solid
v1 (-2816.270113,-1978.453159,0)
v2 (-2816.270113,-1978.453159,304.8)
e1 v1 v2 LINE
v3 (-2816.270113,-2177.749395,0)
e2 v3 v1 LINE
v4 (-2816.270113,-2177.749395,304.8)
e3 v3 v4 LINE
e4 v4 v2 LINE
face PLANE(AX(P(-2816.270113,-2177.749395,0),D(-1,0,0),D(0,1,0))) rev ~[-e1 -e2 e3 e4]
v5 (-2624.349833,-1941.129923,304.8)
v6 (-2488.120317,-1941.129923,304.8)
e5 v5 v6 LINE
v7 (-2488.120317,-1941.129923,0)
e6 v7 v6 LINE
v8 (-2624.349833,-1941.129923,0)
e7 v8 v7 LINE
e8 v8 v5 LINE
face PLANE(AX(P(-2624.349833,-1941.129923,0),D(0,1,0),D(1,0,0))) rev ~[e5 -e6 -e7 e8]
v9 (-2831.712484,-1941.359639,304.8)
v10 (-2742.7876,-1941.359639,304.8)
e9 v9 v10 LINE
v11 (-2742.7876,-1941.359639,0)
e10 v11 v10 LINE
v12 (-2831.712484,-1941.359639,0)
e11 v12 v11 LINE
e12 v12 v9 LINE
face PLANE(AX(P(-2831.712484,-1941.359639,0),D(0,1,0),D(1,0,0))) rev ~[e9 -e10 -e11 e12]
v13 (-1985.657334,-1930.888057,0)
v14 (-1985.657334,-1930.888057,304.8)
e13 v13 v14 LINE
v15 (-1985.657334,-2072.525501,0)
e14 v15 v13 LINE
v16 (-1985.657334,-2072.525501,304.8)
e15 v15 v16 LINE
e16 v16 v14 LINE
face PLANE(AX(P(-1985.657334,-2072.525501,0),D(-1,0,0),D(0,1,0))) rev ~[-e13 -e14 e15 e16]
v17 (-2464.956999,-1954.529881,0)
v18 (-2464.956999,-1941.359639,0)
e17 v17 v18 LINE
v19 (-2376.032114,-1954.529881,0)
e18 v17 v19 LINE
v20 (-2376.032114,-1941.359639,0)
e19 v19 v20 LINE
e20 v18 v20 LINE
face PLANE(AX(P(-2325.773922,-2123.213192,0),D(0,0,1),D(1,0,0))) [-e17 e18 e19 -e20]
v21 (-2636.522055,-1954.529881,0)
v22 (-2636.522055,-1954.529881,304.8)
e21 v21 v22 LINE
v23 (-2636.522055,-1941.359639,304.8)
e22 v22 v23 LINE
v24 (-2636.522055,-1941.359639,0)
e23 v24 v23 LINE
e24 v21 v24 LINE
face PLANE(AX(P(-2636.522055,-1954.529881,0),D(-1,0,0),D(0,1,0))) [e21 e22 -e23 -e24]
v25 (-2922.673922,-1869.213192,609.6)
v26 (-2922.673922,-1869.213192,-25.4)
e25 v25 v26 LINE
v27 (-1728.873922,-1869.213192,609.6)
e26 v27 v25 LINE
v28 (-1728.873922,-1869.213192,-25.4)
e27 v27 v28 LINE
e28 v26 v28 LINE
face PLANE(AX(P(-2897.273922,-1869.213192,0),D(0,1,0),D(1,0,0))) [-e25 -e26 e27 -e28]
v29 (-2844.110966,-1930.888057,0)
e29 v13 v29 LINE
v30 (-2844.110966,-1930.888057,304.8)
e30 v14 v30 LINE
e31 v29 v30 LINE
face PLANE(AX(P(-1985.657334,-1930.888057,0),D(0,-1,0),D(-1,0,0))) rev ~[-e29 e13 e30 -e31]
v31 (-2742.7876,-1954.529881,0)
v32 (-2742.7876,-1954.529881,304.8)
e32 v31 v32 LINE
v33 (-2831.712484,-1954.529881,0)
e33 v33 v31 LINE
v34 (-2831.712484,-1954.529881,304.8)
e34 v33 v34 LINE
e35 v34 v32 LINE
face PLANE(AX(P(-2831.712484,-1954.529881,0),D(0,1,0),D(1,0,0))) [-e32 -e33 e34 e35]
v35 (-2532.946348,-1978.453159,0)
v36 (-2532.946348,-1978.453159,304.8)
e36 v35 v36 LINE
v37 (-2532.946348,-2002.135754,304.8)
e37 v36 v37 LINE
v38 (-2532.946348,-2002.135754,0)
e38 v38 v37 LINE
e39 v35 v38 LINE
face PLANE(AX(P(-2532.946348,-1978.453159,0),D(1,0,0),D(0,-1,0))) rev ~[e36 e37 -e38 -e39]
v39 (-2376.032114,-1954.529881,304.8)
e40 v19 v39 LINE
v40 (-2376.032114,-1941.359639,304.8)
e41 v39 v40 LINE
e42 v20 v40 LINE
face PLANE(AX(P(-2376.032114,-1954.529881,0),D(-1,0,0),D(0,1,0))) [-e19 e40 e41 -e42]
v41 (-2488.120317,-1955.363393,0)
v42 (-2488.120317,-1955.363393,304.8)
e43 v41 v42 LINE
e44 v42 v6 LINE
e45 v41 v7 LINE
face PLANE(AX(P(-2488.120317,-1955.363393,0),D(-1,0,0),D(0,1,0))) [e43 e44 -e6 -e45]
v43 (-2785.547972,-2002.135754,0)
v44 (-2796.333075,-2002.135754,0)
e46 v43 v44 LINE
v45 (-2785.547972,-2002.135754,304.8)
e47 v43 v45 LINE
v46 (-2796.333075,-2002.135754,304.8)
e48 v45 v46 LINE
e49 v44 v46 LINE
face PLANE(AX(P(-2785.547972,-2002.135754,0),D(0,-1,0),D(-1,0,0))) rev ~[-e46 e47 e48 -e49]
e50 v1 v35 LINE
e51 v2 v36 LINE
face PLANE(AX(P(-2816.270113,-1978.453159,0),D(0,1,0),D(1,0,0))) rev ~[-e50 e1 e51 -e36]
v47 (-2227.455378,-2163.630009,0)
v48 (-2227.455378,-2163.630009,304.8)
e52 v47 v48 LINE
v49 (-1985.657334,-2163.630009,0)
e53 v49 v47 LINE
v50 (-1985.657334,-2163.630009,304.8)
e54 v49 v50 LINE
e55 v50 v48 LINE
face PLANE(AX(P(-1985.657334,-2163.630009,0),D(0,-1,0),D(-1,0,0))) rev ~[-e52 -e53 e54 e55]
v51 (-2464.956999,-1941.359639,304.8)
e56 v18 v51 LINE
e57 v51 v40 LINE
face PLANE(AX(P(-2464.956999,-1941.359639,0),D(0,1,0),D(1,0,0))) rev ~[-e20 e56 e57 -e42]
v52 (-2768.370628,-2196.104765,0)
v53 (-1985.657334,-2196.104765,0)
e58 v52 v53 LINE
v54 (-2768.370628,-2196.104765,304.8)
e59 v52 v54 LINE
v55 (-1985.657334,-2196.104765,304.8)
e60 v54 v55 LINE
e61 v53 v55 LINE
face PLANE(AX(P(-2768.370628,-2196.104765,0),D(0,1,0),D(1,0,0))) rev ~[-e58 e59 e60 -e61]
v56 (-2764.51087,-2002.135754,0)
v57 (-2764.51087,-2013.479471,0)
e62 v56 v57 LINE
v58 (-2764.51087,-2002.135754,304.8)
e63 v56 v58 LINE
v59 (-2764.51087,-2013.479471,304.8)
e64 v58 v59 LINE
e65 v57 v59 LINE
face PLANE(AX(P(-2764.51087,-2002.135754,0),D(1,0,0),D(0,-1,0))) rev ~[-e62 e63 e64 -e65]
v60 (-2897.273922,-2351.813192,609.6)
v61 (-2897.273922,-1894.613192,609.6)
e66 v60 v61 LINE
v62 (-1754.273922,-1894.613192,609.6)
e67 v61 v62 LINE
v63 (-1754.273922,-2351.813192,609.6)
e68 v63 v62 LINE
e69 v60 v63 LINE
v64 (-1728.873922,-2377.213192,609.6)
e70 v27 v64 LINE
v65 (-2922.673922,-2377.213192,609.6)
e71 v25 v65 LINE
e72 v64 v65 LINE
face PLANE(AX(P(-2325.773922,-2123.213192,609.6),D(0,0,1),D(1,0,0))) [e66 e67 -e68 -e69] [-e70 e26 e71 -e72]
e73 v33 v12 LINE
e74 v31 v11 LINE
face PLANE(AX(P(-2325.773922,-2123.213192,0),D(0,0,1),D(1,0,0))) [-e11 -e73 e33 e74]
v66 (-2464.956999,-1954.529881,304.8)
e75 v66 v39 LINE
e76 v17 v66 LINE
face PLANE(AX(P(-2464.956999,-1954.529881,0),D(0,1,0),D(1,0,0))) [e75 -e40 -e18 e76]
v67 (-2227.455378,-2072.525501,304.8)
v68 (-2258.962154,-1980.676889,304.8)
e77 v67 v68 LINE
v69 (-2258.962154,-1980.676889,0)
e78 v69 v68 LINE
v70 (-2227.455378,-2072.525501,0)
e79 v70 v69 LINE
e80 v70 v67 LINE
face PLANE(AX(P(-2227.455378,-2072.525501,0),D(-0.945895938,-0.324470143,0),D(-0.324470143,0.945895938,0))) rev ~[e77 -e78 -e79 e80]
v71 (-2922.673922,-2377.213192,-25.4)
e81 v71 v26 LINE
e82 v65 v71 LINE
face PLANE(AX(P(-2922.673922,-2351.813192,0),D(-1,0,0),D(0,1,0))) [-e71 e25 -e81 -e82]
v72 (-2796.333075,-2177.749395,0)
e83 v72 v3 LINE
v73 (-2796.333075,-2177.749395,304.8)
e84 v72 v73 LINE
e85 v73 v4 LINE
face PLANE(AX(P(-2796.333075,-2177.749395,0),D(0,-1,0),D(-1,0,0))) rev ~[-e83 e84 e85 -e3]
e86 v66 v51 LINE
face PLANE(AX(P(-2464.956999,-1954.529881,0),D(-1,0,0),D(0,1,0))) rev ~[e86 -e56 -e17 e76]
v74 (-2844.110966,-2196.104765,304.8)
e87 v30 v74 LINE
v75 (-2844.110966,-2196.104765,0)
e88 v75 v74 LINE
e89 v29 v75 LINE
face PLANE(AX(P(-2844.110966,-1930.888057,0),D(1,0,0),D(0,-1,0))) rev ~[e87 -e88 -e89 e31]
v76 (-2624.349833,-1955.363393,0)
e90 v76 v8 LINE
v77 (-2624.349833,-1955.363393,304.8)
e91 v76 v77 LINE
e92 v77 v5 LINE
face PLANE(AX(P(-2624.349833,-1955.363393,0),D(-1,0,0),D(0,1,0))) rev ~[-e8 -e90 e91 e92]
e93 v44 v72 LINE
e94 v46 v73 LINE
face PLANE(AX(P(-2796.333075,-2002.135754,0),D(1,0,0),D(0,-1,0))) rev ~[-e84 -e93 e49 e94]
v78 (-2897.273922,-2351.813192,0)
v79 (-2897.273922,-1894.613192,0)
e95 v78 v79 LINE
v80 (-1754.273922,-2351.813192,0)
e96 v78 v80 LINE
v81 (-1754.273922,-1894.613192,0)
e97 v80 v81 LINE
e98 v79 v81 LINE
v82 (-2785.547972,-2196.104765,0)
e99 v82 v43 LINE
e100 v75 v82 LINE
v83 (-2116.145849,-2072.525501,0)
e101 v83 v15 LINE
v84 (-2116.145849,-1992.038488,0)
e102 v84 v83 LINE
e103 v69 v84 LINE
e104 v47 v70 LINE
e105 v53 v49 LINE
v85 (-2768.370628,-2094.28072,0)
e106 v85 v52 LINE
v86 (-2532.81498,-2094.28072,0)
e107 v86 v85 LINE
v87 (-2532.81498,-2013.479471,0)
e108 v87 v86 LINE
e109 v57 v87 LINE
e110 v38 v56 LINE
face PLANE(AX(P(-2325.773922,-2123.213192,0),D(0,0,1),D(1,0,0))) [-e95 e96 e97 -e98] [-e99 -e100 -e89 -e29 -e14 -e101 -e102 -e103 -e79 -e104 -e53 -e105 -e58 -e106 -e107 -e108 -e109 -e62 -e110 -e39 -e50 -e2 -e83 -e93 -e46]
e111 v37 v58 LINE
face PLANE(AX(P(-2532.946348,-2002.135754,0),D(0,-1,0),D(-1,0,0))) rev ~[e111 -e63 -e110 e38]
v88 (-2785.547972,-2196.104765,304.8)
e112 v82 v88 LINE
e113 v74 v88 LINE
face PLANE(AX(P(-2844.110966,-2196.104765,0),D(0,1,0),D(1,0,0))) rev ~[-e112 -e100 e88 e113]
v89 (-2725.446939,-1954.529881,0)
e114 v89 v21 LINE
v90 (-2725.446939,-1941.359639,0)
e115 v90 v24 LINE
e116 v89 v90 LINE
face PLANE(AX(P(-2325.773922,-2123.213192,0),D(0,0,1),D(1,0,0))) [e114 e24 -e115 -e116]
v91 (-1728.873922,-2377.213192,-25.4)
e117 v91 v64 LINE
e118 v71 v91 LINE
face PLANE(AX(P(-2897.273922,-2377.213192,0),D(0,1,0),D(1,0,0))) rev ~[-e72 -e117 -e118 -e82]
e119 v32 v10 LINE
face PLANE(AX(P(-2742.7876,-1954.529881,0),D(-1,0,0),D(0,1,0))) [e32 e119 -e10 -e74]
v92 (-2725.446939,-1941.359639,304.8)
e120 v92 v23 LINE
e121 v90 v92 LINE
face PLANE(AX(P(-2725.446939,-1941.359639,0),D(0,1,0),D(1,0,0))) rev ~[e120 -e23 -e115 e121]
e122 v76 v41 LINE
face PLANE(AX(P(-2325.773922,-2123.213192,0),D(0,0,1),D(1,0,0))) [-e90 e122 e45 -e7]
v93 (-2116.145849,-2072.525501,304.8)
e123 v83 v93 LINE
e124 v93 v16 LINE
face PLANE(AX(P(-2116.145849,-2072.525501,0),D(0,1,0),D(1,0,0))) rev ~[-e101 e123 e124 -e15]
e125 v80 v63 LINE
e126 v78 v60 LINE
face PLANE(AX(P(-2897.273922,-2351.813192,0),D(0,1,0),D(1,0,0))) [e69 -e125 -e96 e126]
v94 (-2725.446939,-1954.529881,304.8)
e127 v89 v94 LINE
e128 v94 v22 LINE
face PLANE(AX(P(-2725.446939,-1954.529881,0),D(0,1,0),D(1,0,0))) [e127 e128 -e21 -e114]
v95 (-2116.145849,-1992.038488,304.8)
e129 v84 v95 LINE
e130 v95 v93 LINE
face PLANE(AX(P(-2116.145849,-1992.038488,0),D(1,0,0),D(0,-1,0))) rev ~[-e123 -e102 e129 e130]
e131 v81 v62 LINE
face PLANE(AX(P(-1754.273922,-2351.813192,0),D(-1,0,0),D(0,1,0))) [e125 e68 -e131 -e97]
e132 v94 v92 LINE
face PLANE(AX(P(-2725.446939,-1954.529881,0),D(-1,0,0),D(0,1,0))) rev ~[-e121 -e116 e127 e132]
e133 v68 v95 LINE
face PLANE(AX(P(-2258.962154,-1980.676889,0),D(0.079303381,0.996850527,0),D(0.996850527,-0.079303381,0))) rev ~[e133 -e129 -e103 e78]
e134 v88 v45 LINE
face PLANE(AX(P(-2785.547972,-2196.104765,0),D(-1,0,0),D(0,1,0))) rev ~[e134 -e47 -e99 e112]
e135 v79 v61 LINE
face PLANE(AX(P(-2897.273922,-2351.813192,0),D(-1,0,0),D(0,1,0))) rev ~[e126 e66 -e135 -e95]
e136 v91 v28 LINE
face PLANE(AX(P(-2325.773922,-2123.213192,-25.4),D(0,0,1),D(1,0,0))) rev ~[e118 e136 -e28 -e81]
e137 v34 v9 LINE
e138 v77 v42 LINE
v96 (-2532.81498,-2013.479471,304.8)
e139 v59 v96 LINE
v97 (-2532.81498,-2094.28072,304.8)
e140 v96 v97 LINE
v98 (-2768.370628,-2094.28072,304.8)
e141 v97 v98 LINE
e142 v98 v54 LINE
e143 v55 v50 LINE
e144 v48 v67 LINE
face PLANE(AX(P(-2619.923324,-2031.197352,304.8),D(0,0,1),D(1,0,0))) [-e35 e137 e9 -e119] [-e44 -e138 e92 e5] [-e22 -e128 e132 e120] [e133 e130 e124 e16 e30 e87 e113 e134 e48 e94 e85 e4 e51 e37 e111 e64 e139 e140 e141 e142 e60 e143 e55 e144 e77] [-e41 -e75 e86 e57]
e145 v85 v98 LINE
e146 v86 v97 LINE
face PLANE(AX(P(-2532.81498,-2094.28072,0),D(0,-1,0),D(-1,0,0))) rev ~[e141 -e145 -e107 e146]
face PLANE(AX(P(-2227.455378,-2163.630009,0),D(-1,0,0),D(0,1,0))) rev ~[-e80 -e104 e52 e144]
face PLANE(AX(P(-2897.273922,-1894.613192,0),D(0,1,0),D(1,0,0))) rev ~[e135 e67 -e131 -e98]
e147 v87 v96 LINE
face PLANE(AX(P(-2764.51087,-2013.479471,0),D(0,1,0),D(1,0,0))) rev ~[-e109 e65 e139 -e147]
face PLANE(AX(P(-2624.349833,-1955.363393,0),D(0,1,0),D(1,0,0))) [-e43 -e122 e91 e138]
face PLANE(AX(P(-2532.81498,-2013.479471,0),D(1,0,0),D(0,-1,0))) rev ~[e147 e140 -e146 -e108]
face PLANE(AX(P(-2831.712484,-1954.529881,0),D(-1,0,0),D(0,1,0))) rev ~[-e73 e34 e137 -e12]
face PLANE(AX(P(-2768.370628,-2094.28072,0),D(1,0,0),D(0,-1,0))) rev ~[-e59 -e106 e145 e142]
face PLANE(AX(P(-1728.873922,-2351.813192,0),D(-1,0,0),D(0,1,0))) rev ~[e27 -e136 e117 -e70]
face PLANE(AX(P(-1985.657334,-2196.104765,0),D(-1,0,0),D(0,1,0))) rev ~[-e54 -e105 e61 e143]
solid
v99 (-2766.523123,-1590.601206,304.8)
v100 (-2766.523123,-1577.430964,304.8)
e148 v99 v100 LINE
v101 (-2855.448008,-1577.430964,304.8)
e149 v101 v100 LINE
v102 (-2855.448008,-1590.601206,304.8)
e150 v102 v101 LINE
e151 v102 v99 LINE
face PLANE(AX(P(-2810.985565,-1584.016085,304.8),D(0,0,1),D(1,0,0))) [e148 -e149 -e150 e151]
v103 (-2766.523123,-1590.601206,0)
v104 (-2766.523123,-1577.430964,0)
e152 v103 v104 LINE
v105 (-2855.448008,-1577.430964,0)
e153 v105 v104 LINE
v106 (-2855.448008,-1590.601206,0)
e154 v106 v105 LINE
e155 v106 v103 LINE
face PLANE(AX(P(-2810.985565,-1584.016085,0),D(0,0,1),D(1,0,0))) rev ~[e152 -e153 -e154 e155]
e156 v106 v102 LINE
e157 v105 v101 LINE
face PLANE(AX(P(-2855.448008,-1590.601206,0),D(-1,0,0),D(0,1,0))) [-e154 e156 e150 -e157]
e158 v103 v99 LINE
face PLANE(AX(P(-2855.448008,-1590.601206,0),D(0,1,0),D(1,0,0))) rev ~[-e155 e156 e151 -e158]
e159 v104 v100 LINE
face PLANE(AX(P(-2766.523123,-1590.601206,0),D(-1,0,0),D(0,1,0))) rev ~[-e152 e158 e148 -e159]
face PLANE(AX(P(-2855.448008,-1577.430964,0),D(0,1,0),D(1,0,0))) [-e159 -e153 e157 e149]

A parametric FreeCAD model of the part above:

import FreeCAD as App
import Part
import Sketcher
Q = App.Units.Quantity


def faces_at(feature, points):
    """Names of the faces that lie closest to the given points."""
    faces = feature.Shape.Faces
    near = lambda p: min(range(len(faces)), key=lambda i: faces[i].distToShape(Part.Vertex(*p))[0])
    return sorted({f"Face{near(p) + 1}" for p in points})


def add_polygon(sketch, points):
    """Adds a closed chain of lines whose ends are joined by coincident constraints."""
    first, n = sketch.GeometryCount, len(points)
    for a, b in zip(points, points[1:] + points[:1]):
        sketch.addGeometry(Part.LineSegment(App.Vector(*a, 0), App.Vector(*b, 0)), False)
    for i in range(n):
        sketch.addConstraint(Sketcher.Constraint("Coincident", first + i, 2, first + (i + 1) % n, 1))

doc = App.newDocument("Part")
body = doc.addObject("PartDesign::Body", "Body")

# Sketch on XY plane
sketch1 = doc.addObject("Sketcher::SketchObject", "Sketch")
body.addObject(sketch1)
sketch1.AttachmentSupport = (doc.XY_Plane, [""])
sketch1.MapMode = "FlatFace"
add_polygon(sketch1, [(-2897, -1895), (-2897, -2352), (-1754, -2352), (-1754, -1895)])  # lines 0-3
sketch1.addConstraint([
    Sketcher.Constraint("Vertical", 0),
    Sketcher.Constraint("Horizontal", 1),
    Sketcher.Constraint("Vertical", 2),
    Sketcher.Constraint("Horizontal", 3),
    Sketcher.Constraint("DistanceX", 1, 1, 1, 2, Q("45 in")),
    Sketcher.Constraint("DistanceY", 0, 2, 0, 1, Q("18 in")),
    Sketcher.Constraint("DistanceX", 0, 2, -1, 1, 2897.273922),
    Sketcher.Constraint("DistanceY", 0, 2, -1, 1, 2351.813192),
])
pad1 = doc.addObject("PartDesign::Pad", "Pad")
body.addObject(pad1)
pad1.Profile = sketch1
pad1.Length = Q("24 in")
doc.recompute()

thickness = doc.addObject("PartDesign::Thickness", "Thickness")
body.addObject(thickness)
thickness.Base = (pad1, faces_at(pad1, [(-2325.774, -2123.213, 609.6)]))
thickness.Value = Q("1 in")
thickness.Reversed = False
thickness.Join = "Intersection"

# Sketch on XY plane
sketch2 = doc.addObject("Sketcher::SketchObject", "Sketch001")
body.addObject(sketch2)
sketch2.AttachmentSupport = (doc.XY_Plane, [""])
sketch2.MapMode = "FlatFace"
add_polygon(sketch2, [(-2844, -1931), (-2844, -2196), (-2786, -2196), (-2786, -2002), (-2796, -2002), (-2796, -2178), (-2816, -2178), (-2816, -1978), (-2533, -1978), (-2533, -2002), (-2765, -2002), (-2765, -2013), (-2533, -2013), (-2533, -2094), (-2768, -2094), (-2768, -2196), (-1986, -2196), (-1986, -2164), (-2227, -2164), (-2227, -2073), (-2259, -1981), (-2116, -1992), (-2116, -2073), (-1986, -2073), (-1986, -1931)])  # lines 0-24
add_polygon(sketch2, [(-2743, -1955), (-2832, -1955), (-2832, -1941), (-2743, -1941)])  # lines 25-28
add_polygon(sketch2, [(-2637, -1955), (-2725, -1955), (-2725, -1941), (-2637, -1941)])  # lines 29-32
add_polygon(sketch2, [(-2488, -1955), (-2624, -1955), (-2624, -1941), (-2488, -1941)])  # lines 33-36
add_polygon(sketch2, [(-2376, -1955), (-2465, -1955), (-2465, -1941), (-2376, -1941)])  # lines 37-40
sketch2.addConstraint([
    Sketcher.Constraint("Vertical", 0),
    Sketcher.Constraint("Horizontal", 1),
    Sketcher.Constraint("Vertical", 2),
    Sketcher.Constraint("Horizontal", 3),
    Sketcher.Constraint("Vertical", 4),
    Sketcher.Constraint("Horizontal", 5),
    Sketcher.Constraint("Vertical", 6),
    Sketcher.Constraint("Horizontal", 7),
    Sketcher.Constraint("Vertical", 8),
    Sketcher.Constraint("Horizontal", 9),
    Sketcher.Constraint("Vertical", 10),
    Sketcher.Constraint("Horizontal", 11),
    Sketcher.Constraint("Vertical", 12),
    Sketcher.Constraint("Horizontal", 13),
    Sketcher.Constraint("Vertical", 14),
    Sketcher.Constraint("Horizontal", 15),
    Sketcher.Constraint("Vertical", 16),
    Sketcher.Constraint("Horizontal", 17),
    Sketcher.Constraint("Vertical", 18),
    Sketcher.Constraint("Vertical", 21),
    Sketcher.Constraint("Horizontal", 22),
    Sketcher.Constraint("Vertical", 23),
    Sketcher.Constraint("Horizontal", 24),
    Sketcher.Constraint("Horizontal", 25),
    Sketcher.Constraint("Vertical", 26),
    Sketcher.Constraint("Horizontal", 27),
    Sketcher.Constraint("Vertical", 28),
    Sketcher.Constraint("Horizontal", 29),
    Sketcher.Constraint("Vertical", 30),
    Sketcher.Constraint("Horizontal", 31),
    Sketcher.Constraint("Vertical", 32),
    Sketcher.Constraint("Horizontal", 33),
    Sketcher.Constraint("Vertical", 34),
    Sketcher.Constraint("Horizontal", 35),
    Sketcher.Constraint("Vertical", 36),
    Sketcher.Constraint("Horizontal", 37),
    Sketcher.Constraint("Vertical", 38),
    Sketcher.Constraint("Horizontal", 39),
    Sketcher.Constraint("Vertical", 40),
    Sketcher.Constraint("Horizontal", 3, 2, 8, 2),
    Sketcher.Constraint("Horizontal", 1, 2, 14, 2),
    Sketcher.Constraint("Horizontal", 18, 2, 21, 2),
    Sketcher.Constraint("Horizontal", 28, 2, 29, 2),
    Sketcher.Constraint("Horizontal", 27, 2, 30, 2),
    Sketcher.Constraint("Horizontal", 32, 2, 37, 2),
    Sketcher.Constraint("Horizontal", 31, 2, 38, 2),
    Sketcher.Constraint("Vertical", 16, 2, 22, 2),
    Sketcher.Constraint("Equal", 27, 29),
    Sketcher.Constraint("Equal", 31, 37),
    Sketcher.Constraint("DistanceX", 5, 2, 5, 1, 19.937038),
    Sketcher.Constraint("DistanceX", 9, 2, 9, 1, 231.564522),
    Sketcher.Constraint("DistanceX", 11, 1, 11, 2, 231.69589),
    Sketcher.Constraint("DistanceX", 13, 2, 13, 1, 235.555649),
    Sketcher.Constraint("DistanceX", 24, 2, 24, 1, 858.453631),
    Sketcher.Constraint("DistanceY", 0, 2, 0, 1, 265.216708),
    Sketcher.Constraint("DistanceY", 2, 1, 2, 2, 193.969011),
    Sketcher.Constraint("DistanceY", 4, 2, 4, 1, 175.613642),
    Sketcher.Constraint("DistanceY", 12, 2, 12, 1, 80.801249),
    Sketcher.Constraint("DistanceY", 34, 1, 34, 2, 14.23347),
    Sketcher.Constraint("DistanceY", 18, 2, -1, 1, 2072.525501),
    Sketcher.Constraint("DistanceX", 27, 2, -1, 1, 2742.7876),
    Sketcher.Constraint("DistanceX", 37, 2, -1, 1, 2464.956999),
    Sketcher.Constraint("DistanceX", 2, 2, 9, 2, 21.037102),
    Sketcher.Constraint("DistanceX", 12, 2, 17, 2, 305.359602),
    Sketcher.Constraint("DistanceY", 20, 2, 19, 2, 11.361599),
    Sketcher.Constraint("DistanceX", 1, 1, 1, 2, 58.562994),
    Sketcher.Constraint("DistanceX", 3, 2, 3, 1, 10.785103),
    Sketcher.Constraint("DistanceX", 22, 1, 22, 2, 130.488515),
    Sketcher.Constraint("DistanceX", 25, 2, 25, 1, 88.924885),
    Sketcher.Constraint("DistanceX", 33, 2, 33, 1, 136.229515),
    Sketcher.Constraint("DistanceY", 6, 1, 6, 2, 199.296236),
    Sketcher.Constraint("DistanceY", 10, 2, 10, 1, 11.343718),
    Sketcher.Constraint("DistanceY", 16, 1, 16, 2, 32.474756),
    Sketcher.Constraint("DistanceY", 18, 1, 18, 2, 91.104507),
    Sketcher.Constraint("DistanceY", 21, 2, 21, 1, 80.487013),
    Sketcher.Constraint("DistanceY", 26, 1, 26, 2, 13.170242),
    Sketcher.Constraint("DistanceX", 1, 2, -1, 1, 2785.547972),
    Sketcher.Constraint("DistanceY", 25, 2, -1, 1, 1954.529881),
    Sketcher.Constraint("DistanceX", 29, 2, -1, 1, 2725.446939),
    Sketcher.Constraint("DistanceY", 33, 2, 32, 2, 0.833511),
    Sketcher.Constraint("DistanceX", 7, 2, 35, 2, 44.826031),
    Sketcher.Constraint("DistanceX", 39, 2, 19, 2, 117.06996),
])
pad2 = doc.addObject("PartDesign::Pad", "Pad001")
body.addObject(pad2)
pad2.Profile = sketch2
pad2.Length = Q("12 in")
body2 = doc.addObject("PartDesign::Body", "Body001")

# Sketch on XY plane
sketch3 = doc.addObject("Sketcher::SketchObject", "Sketch002")
body2.addObject(sketch3)
sketch3.AttachmentSupport = (doc.getObject("XY_Plane001"), [""])
sketch3.MapMode = "FlatFace"
add_polygon(sketch3, [(-2855, -1577), (-2855, -1591), (-2767, -1591), (-2767, -1577)])  # lines 0-3
sketch3.addConstraint([
    Sketcher.Constraint("Vertical", 0),
    Sketcher.Constraint("Horizontal", 1),
    Sketcher.Constraint("Vertical", 2),
    Sketcher.Constraint("Horizontal", 3),
    Sketcher.Constraint("DistanceX", 1, 1, 1, 2, 88.924885),
    Sketcher.Constraint("DistanceY", 0, 2, 0, 1, 13.170242),
    Sketcher.Constraint("DistanceX", 0, 2, -1, 1, 2855.448008),
    Sketcher.Constraint("DistanceY", 0, 2, -1, 1, 1590.601206),
])
pad3 = doc.addObject("PartDesign::Pad", "Pad002")
body2.addObject(pad3)
pad3.Profile = sketch3
pad3.Length = Q("12 in")

doc.recompute()
